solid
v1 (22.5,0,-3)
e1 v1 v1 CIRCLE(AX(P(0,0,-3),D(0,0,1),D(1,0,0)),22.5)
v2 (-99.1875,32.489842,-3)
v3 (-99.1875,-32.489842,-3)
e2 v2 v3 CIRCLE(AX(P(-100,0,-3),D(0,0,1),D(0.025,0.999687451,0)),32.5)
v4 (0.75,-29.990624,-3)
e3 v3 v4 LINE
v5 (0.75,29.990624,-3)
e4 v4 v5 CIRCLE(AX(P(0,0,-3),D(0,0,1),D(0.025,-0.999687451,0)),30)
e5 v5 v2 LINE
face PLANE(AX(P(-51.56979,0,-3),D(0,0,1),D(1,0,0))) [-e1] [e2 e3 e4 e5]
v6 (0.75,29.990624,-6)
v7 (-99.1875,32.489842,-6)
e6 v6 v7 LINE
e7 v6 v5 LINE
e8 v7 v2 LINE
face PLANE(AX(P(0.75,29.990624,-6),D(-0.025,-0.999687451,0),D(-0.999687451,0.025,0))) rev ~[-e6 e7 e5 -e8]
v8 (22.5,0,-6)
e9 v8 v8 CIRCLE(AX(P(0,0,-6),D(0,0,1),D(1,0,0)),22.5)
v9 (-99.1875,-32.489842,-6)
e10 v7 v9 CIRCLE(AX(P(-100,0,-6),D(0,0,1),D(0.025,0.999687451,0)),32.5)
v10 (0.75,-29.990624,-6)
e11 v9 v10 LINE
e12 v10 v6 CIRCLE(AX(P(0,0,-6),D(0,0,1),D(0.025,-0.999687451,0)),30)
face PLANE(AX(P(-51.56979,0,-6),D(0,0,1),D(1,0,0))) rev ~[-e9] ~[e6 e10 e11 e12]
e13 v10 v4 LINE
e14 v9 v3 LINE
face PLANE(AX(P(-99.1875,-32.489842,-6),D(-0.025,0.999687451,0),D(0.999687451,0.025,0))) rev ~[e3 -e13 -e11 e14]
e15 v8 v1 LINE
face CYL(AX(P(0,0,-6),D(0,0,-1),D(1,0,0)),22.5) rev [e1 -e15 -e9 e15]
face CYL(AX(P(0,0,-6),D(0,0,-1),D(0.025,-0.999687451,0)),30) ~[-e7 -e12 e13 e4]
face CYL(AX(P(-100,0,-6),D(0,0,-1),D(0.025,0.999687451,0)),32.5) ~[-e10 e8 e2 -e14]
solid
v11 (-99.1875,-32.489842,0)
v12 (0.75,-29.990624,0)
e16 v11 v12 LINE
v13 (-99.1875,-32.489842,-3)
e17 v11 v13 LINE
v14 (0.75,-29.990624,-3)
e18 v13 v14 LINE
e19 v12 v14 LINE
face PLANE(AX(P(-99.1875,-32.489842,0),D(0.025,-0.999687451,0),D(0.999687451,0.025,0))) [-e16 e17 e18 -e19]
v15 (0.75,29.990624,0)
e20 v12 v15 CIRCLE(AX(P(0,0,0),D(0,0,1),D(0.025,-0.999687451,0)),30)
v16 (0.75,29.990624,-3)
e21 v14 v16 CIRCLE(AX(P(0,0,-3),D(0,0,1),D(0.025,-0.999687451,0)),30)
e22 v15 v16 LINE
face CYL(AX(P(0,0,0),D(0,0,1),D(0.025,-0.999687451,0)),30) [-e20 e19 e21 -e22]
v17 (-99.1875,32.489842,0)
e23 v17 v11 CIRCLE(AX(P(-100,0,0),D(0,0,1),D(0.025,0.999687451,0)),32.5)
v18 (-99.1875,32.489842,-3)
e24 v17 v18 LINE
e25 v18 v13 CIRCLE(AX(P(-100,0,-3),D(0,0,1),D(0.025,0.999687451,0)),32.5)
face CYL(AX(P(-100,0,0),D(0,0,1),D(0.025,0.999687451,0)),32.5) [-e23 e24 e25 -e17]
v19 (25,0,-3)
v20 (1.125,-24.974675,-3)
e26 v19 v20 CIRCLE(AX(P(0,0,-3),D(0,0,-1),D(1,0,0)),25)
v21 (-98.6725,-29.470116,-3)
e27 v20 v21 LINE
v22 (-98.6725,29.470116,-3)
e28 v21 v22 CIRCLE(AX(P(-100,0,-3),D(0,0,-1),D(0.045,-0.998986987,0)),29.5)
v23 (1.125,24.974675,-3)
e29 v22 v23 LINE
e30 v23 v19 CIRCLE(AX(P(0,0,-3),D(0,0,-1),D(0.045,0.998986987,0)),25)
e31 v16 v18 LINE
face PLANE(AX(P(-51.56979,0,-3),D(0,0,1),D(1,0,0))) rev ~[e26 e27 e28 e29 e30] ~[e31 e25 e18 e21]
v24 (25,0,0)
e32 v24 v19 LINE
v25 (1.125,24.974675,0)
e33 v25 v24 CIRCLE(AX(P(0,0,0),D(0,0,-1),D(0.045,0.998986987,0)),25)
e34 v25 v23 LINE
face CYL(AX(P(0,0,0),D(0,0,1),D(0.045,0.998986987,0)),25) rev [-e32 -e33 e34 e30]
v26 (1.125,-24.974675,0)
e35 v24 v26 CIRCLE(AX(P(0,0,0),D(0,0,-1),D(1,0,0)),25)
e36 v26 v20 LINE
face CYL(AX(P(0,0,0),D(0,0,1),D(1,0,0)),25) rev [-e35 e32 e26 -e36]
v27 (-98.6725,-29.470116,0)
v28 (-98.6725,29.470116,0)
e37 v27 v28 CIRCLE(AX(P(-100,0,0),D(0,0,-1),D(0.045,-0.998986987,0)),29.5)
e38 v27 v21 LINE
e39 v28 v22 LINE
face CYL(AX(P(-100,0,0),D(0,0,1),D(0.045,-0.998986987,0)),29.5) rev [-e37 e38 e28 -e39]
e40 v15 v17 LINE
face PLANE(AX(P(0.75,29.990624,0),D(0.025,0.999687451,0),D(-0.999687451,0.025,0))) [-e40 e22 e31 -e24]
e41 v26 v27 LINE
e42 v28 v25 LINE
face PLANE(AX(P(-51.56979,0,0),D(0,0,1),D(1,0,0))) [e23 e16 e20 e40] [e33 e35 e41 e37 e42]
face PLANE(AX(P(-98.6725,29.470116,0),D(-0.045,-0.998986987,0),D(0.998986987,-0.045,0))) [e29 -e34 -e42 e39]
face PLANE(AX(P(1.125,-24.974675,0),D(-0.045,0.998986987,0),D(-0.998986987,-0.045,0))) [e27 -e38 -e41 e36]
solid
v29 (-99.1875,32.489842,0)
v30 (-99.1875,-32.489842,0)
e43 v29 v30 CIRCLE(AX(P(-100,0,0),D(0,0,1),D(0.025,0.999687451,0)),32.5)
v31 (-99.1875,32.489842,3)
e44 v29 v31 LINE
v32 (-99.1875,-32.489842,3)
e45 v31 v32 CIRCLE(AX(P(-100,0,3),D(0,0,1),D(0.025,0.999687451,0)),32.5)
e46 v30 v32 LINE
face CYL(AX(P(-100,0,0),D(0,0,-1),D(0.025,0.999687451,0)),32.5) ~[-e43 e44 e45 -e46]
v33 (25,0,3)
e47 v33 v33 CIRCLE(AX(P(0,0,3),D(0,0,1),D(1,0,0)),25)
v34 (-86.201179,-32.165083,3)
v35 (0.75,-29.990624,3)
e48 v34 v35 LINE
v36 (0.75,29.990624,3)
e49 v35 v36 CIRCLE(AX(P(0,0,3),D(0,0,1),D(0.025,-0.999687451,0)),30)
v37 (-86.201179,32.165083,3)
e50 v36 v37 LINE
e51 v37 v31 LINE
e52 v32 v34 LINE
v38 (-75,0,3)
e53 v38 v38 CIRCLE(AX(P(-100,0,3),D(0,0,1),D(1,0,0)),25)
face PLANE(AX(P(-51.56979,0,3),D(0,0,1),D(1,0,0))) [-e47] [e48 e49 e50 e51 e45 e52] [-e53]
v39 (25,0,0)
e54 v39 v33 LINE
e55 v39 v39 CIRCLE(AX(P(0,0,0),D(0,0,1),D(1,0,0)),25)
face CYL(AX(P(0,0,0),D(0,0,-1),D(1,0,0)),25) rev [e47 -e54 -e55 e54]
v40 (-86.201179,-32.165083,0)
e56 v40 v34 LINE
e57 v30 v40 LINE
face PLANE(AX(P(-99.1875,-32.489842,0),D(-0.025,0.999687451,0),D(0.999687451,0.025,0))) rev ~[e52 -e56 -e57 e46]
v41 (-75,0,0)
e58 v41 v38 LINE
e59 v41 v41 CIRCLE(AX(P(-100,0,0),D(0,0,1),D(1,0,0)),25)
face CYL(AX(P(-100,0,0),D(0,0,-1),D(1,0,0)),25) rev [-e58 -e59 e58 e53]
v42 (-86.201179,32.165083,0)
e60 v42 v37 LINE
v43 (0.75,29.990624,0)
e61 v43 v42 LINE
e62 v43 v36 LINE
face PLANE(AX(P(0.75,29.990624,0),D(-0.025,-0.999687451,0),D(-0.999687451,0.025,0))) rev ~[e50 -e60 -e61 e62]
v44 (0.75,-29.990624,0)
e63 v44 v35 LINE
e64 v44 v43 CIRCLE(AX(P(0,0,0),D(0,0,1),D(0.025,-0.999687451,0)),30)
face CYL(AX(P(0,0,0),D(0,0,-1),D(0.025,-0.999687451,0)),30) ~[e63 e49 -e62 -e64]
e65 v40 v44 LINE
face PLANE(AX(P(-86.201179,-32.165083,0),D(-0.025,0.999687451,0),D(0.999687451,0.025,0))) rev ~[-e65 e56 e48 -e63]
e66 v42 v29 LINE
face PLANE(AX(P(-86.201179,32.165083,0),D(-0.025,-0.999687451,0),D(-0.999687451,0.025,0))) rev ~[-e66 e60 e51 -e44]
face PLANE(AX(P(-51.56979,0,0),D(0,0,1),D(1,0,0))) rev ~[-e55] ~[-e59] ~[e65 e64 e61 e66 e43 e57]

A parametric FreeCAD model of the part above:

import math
import FreeCAD as App
import Part
import Sketcher

V = App.Vector

doc = App.newDocument("Part")
body = doc.addObject("PartDesign::Body", "Body")

sketch1 = body.newObject("Sketcher::SketchObject", "Sketch")
sketch1.AttachmentSupport = (doc.getObject("XY_Plane"), [""])
sketch1.MapMode = "FlatFace"
sketch1.addGeometry([
    Part.LineSegment(V(1, 30, 0), V(-86, 32, 0)),
    Part.LineSegment(V(-86, 32, 0), V(-99, 32, 0)),
    Part.ArcOfCircle(Part.Circle(V(-100, 0, 0), V(0, 0, 1), 32), math.radians(89), math.radians(271)),
    Part.LineSegment(V(-99, -32, 0), V(-86, -32, 0)),
    Part.LineSegment(V(-86, -32, 0), V(1, -30, 0)),
    Part.ArcOfCircle(Part.Circle(V(0, 0, 0), V(0, 0, 1), 30), math.radians(-89), math.radians(89)),
    Part.Circle(V(-100, 0, 0), V(0, 0, 1), 25),
    Part.Circle(V(0, 0, 0), V(0, 0, 1), 25),
], False)
sketch1.addConstraint([
    Sketcher.Constraint("Coincident", 0, 2, 1, 1),
    Sketcher.Constraint("Tangent", 1, 2, 2, 1),
    Sketcher.Constraint("Tangent", 2, 2, 3, 1),
    Sketcher.Constraint("Coincident", 3, 2, 4, 1),
    Sketcher.Constraint("Tangent", 4, 2, 5, 1),
    Sketcher.Constraint("Tangent", 5, 2, 0, 1),
    Sketcher.Constraint("Coincident", 5, 3, -1, 1),
    Sketcher.Constraint("Coincident", 7, 3, -1, 1),
    Sketcher.Constraint("Coincident", 6, 3, 2, 3),
    Sketcher.Constraint("Equal", 6, 7),
    Sketcher.Constraint("Symmetric", 1, 2, 2, 2, -1),
    Sketcher.Constraint("Parallel", 0, 1),
    Sketcher.Constraint("Vertical", 0, 2, 3, 2),
    Sketcher.Constraint("Diameter", 6, 50.0),
    Sketcher.Constraint("Radius", 5, 30.0),
    Sketcher.Constraint("Radius", 2, 32.5),
    Sketcher.Constraint("DistanceX", 2, 3, -1, 1, 100.0),
    Sketcher.Constraint("Distance", 1, 12.990381),
])
pad1 = body.newObject("PartDesign::Pad", "Pad")
pad1.Profile = sketch1
pad1.Length = 3
body2 = doc.addObject("PartDesign::Body", "Body001")

sketch2 = body2.newObject("Sketcher::SketchObject", "Sketch001")
sketch2.AttachmentSupport = (doc.getObject("XY_Plane001"), [""])
sketch2.MapMode = "FlatFace"
sketch2.addGeometry([
    Part.LineSegment(V(1, 30, 0), V(-99, 32, 0)),
    Part.ArcOfCircle(Part.Circle(V(-100, 0, 0), V(0, 0, 1), 32), math.radians(89), math.radians(271)),
    Part.LineSegment(V(-99, -32, 0), V(1, -30, 0)),
    Part.ArcOfCircle(Part.Circle(V(0, 0, 0), V(0, 0, 1), 30), math.radians(-89), math.radians(89)),
    Part.LineSegment(V(1, -25, 0), V(-99, -29, 0)),
    Part.ArcOfCircle(Part.Circle(V(-100, 0, 0), V(0, 0, 1), 30), math.radians(87), math.radians(273)),
    Part.LineSegment(V(-99, 29, 0), V(1, 25, 0)),
    Part.ArcOfCircle(Part.Circle(V(0, 0, 0), V(0, 0, 1), 25), math.radians(0), math.radians(87)),
    Part.ArcOfCircle(Part.Circle(V(0, 0, 0), V(0, 0, 1), 25), math.radians(-87), math.radians(0)),
], False)
sketch2.addConstraint([
    Sketcher.Constraint("Tangent", 0, 2, 1, 1),
    Sketcher.Constraint("Tangent", 1, 2, 2, 1),
    Sketcher.Constraint("Tangent", 2, 2, 3, 1),
    Sketcher.Constraint("Tangent", 3, 2, 0, 1),
    Sketcher.Constraint("Tangent", 4, 2, 5, 2),
    Sketcher.Constraint("Tangent", 5, 1, 6, 1),
    Sketcher.Constraint("Tangent", 6, 2, 7, 2),
    Sketcher.Constraint("Tangent", 7, 1, 8, 2),
    Sketcher.Constraint("Tangent", 8, 1, 4, 1),
    Sketcher.Constraint("Coincident", 3, 3, -1, 1),
    Sketcher.Constraint("Coincident", 7, 3, -1, 1),
    Sketcher.Constraint("Coincident", 5, 3, 1, 3),
    Sketcher.Constraint("Equal", 7, 8),
    Sketcher.Constraint("PointOnObject", 1, 3, -1),
    Sketcher.Constraint("PointOnObject", 7, 1, -1),
    Sketcher.Constraint("Radius", 3, 30.0),
    Sketcher.Constraint("Radius", 7, 25.0),
    Sketcher.Constraint("Radius", 1, 32.5),
    Sketcher.Constraint("Radius", 5, 29.5),
    Sketcher.Constraint("DistanceX", 1, 3, -1, 1, 100.0),
])
pad2 = body2.newObject("PartDesign::Pad", "Pad001")
pad2.Profile = sketch2
pad2.Length = 3
pad2.Reversed = True
body3 = doc.addObject("PartDesign::Body", "Body002")

sketch3 = body3.newObject("Sketcher::SketchObject", "Sketch002")
sketch3.AttachmentSupport = (doc.getObject("XY_Plane002"), [""])
sketch3.MapMode = "FlatFace"
sketch3.AttachmentOffset = App.Placement(V(0, 0, -6), App.Rotation())
sketch3.addGeometry([
    Part.LineSegment(V(1, 30, 0), V(-99, 32, 0)),
    Part.ArcOfCircle(Part.Circle(V(-100, 0, 0), V(0, 0, 1), 32), math.radians(89), math.radians(271)),
    Part.LineSegment(V(-99, -32, 0), V(1, -30, 0)),
    Part.ArcOfCircle(Part.Circle(V(0, 0, 0), V(0, 0, 1), 30), math.radians(-89), math.radians(89)),
    Part.Circle(V(0, 0, 0), V(0, 0, 1), 22),
], False)
sketch3.addConstraint([
    Sketcher.Constraint("Tangent", 0, 2, 1, 1),
    Sketcher.Constraint("Tangent", 1, 2, 2, 1),
    Sketcher.Constraint("Tangent", 2, 2, 3, 1),
    Sketcher.Constraint("Tangent", 3, 2, 0, 1),
    Sketcher.Constraint("Coincident", 3, 3, -1, 1),
    Sketcher.Constraint("Coincident", 4, 3, -1, 1),
    Sketcher.Constraint("PointOnObject", 1, 3, -1),
    Sketcher.Constraint("Diameter", 4, 45.0),
    Sketcher.Constraint("Radius", 3, 30.0),
    Sketcher.Constraint("Radius", 1, 32.5),
    Sketcher.Constraint("DistanceX", 1, 3, -1, 1, 100.0),
])
pad3 = body3.newObject("PartDesign::Pad", "Pad002")
pad3.Profile = sketch3
pad3.Length = 3

doc.recompute()
